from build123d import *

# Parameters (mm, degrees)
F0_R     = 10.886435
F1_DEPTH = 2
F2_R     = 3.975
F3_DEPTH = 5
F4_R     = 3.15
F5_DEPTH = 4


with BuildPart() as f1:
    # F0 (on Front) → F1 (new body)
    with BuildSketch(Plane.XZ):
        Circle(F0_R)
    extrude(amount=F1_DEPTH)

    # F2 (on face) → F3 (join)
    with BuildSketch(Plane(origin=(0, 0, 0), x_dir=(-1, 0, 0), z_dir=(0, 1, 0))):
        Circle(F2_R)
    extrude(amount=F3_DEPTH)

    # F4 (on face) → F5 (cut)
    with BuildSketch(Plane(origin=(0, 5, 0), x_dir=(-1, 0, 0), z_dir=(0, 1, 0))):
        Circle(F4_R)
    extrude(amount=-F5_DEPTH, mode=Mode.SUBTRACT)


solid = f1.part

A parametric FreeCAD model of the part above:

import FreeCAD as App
import Part
import Sketcher
from FreeCAD import Vector
Q = App.Units.Quantity

doc = App.newDocument("Part")
body = doc.addObject("PartDesign::Body", "Body")

sketch1 = body.newObject("Sketcher::SketchObject", "Sketch")
sketch1.AttachmentSupport = (doc.getObject("XZ_Plane"), [""])
sketch1.MapMode = "FlatFace"
sketch1.addGeometry(Part.Circle(Vector(0, 0, 0), Vector(0, 0, 1), 11), False)
sketch1.addConstraint([
    Sketcher.Constraint("Coincident", 0, 3, -1, 1),
    Sketcher.Constraint("Diameter", 0, Q("21.77287 mm")),
])
pad1 = body.newObject("PartDesign::Pad", "Pad")
pad1.Profile = sketch1
pad1.Length = 2

sketch2 = body.newObject("Sketcher::SketchObject", "Sketch001")
sketch2.AttachmentSupport = (doc.getObject("XZ_Plane"), [""])
sketch2.MapMode = "FlatFace"
sketch2.addGeometry(Part.Circle(Vector(0, 0, 0), Vector(0, 0, 1), 4), False)
sketch2.addConstraint([
    Sketcher.Constraint("Coincident", 0, 3, -1, 1),
    Sketcher.Constraint("Diameter", 0, Q("7.95 mm")),
])
pad2 = body.newObject("PartDesign::Pad", "Pad001")
pad2.Profile = sketch2
pad2.Length = 5
pad2.Reversed = True

sketch3 = body.newObject("Sketcher::SketchObject", "Sketch002")
sketch3.AttachmentSupport = (doc.getObject("XZ_Plane"), [""])
sketch3.MapMode = "FlatFace"
sketch3.AttachmentOffset = App.Placement(Vector(0, 0, -5), App.Rotation())
sketch3.addGeometry(Part.Circle(Vector(0, 0, 0), Vector(0, 0, 1), 3.1), False)
sketch3.addConstraint([
    Sketcher.Constraint("Coincident", 0, 3, -1, 1),
    Sketcher.Constraint("Diameter", 0, Q("6.3 mm")),
])
pocket1 = body.newObject("PartDesign::Pocket", "Pocket")
pocket1.Profile = sketch3
pocket1.Length = 4
pocket1.Reversed = True

doc.recompute()
